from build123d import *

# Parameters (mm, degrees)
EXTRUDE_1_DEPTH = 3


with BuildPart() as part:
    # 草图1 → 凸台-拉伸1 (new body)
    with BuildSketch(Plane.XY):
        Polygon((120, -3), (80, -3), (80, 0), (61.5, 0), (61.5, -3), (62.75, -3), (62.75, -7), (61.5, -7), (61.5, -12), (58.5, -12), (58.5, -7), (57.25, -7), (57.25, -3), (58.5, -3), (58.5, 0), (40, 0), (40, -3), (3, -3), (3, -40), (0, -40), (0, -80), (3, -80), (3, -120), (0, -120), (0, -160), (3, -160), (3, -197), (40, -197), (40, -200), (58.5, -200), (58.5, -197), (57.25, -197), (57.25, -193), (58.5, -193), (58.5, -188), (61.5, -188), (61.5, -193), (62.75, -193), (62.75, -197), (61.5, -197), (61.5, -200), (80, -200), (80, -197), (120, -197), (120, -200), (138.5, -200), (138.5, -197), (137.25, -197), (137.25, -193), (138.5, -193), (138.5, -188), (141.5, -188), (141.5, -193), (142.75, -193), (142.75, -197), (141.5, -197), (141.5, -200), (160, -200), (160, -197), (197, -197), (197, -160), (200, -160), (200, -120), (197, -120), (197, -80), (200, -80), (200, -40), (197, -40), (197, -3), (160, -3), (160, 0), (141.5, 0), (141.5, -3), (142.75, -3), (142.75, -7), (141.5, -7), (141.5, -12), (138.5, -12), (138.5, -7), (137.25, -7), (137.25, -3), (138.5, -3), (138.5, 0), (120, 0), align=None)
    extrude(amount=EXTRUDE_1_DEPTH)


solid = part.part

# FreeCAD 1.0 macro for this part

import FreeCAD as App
import Part
import Sketcher
Q = App.Units.Quantity

doc = App.newDocument("Part")
body = doc.addObject("PartDesign::Body", "Body")

# Sketch on XY plane
sketch1 = doc.addObject("Sketcher::SketchObject", "Sketch")
body.addObject(sketch1)
sketch1.AttachmentSupport = (doc.XY_Plane, [""])
sketch1.MapMode = "FlatFace"
sketch1.addGeometry([
    Part.LineSegment(App.Vector(120, -3, 0), App.Vector(80, -3, 0)),  # 0
    Part.LineSegment(App.Vector(80, -3, 0), App.Vector(80, 0, 0)),  # 1
    Part.LineSegment(App.Vector(80, 0, 0), App.Vector(61.5, 0, 0)),  # 2
    Part.LineSegment(App.Vector(61.5, 0, 0), App.Vector(61.5, -3, 0)),  # 3
    Part.LineSegment(App.Vector(61.5, -3, 0), App.Vector(62.8, -3, 0)),  # 4
    Part.LineSegment(App.Vector(62.8, -3, 0), App.Vector(62.8, -7, 0)),  # 5
    Part.LineSegment(App.Vector(62.8, -7, 0), App.Vector(61.5, -7, 0)),  # 6
    Part.LineSegment(App.Vector(61.5, -7, 0), App.Vector(61.5, -12, 0)),  # 7
    Part.LineSegment(App.Vector(61.5, -12, 0), App.Vector(58.5, -12, 0)),  # 8
    Part.LineSegment(App.Vector(58.5, -12, 0), App.Vector(58.5, -7, 0)),  # 9
    Part.LineSegment(App.Vector(58.5, -7, 0), App.Vector(57.2, -7, 0)),  # 10
    Part.LineSegment(App.Vector(57.2, -7, 0), App.Vector(57.2, -3, 0)),  # 11
    Part.LineSegment(App.Vector(57.2, -3, 0), App.Vector(58.5, -3, 0)),  # 12
    Part.LineSegment(App.Vector(58.5, -3, 0), App.Vector(58.5, 0, 0)),  # 13
    Part.LineSegment(App.Vector(58.5, 0, 0), App.Vector(40, 0, 0)),  # 14
    Part.LineSegment(App.Vector(40, 0, 0), App.Vector(40, -3, 0)),  # 15
    Part.LineSegment(App.Vector(40, -3, 0), App.Vector(3, -3, 0)),  # 16
    Part.LineSegment(App.Vector(3, -3, 0), App.Vector(3, -40, 0)),  # 17
    Part.LineSegment(App.Vector(3, -40, 0), App.Vector(0, -40, 0)),  # 18
    Part.LineSegment(App.Vector(0, -40, 0), App.Vector(0, -80, 0)),  # 19
    Part.LineSegment(App.Vector(0, -80, 0), App.Vector(3, -80, 0)),  # 20
    Part.LineSegment(App.Vector(3, -80, 0), App.Vector(3, -120, 0)),  # 21
    Part.LineSegment(App.Vector(3, -120, 0), App.Vector(0, -120, 0)),  # 22
    Part.LineSegment(App.Vector(0, -120, 0), App.Vector(0, -160, 0)),  # 23
    Part.LineSegment(App.Vector(0, -160, 0), App.Vector(3, -160, 0)),  # 24
    Part.LineSegment(App.Vector(3, -160, 0), App.Vector(3, -197, 0)),  # 25
    Part.LineSegment(App.Vector(3, -197, 0), App.Vector(40, -197, 0)),  # 26
    Part.LineSegment(App.Vector(40, -197, 0), App.Vector(40, -200, 0)),  # 27
    Part.LineSegment(App.Vector(40, -200, 0), App.Vector(58.5, -200, 0)),  # 28
    Part.LineSegment(App.Vector(58.5, -200, 0), App.Vector(58.5, -197, 0)),  # 29
    Part.LineSegment(App.Vector(58.5, -197, 0), App.Vector(57.2, -197, 0)),  # 30
    Part.LineSegment(App.Vector(57.2, -197, 0), App.Vector(57.2, -193, 0)),  # 31
    Part.LineSegment(App.Vector(57.2, -193, 0), App.Vector(58.5, -193, 0)),  # 32
    Part.LineSegment(App.Vector(58.5, -193, 0), App.Vector(58.5, -188, 0)),  # 33
    Part.LineSegment(App.Vector(58.5, -188, 0), App.Vector(61.5, -188, 0)),  # 34
    Part.LineSegment(App.Vector(61.5, -188, 0), App.Vector(61.5, -193, 0)),  # 35
    Part.LineSegment(App.Vector(61.5, -193, 0), App.Vector(62.8, -193, 0)),  # 36
    Part.LineSegment(App.Vector(62.8, -193, 0), App.Vector(62.8, -197, 0)),  # 37
    Part.LineSegment(App.Vector(62.8, -197, 0), App.Vector(61.5, -197, 0)),  # 38
    Part.LineSegment(App.Vector(61.5, -197, 0), App.Vector(61.5, -200, 0)),  # 39
    Part.LineSegment(App.Vector(61.5, -200, 0), App.Vector(80, -200, 0)),  # 40
    Part.LineSegment(App.Vector(80, -200, 0), App.Vector(80, -197, 0)),  # 41
    Part.LineSegment(App.Vector(80, -197, 0), App.Vector(120, -197, 0)),  # 42
    Part.LineSegment(App.Vector(120, -197, 0), App.Vector(120, -200, 0)),  # 43
    Part.LineSegment(App.Vector(120, -200, 0), App.Vector(138.5, -200, 0)),  # 44
    Part.LineSegment(App.Vector(138.5, -200, 0), App.Vector(138.5, -197, 0)),  # 45
    Part.LineSegment(App.Vector(138.5, -197, 0), App.Vector(137.2, -197, 0)),  # 46
    Part.LineSegment(App.Vector(137.2, -197, 0), App.Vector(137.2, -193, 0)),  # 47
    Part.LineSegment(App.Vector(137.2, -193, 0), App.Vector(138.5, -193, 0)),  # 48
    Part.LineSegment(App.Vector(138.5, -193, 0), App.Vector(138.5, -188, 0)),  # 49
    Part.LineSegment(App.Vector(138.5, -188, 0), App.Vector(141.5, -188, 0)),  # 50
    Part.LineSegment(App.Vector(141.5, -188, 0), App.Vector(141.5, -193, 0)),  # 51
    Part.LineSegment(App.Vector(141.5, -193, 0), App.Vector(142.8, -193, 0)),  # 52
    Part.LineSegment(App.Vector(142.8, -193, 0), App.Vector(142.8, -197, 0)),  # 53
    Part.LineSegment(App.Vector(142.8, -197, 0), App.Vector(141.5, -197, 0)),  # 54
    Part.LineSegment(App.Vector(141.5, -197, 0), App.Vector(141.5, -200, 0)),  # 55
    Part.LineSegment(App.Vector(141.5, -200, 0), App.Vector(160, -200, 0)),  # 56
    Part.LineSegment(App.Vector(160, -200, 0), App.Vector(160, -197, 0)),  # 57
    Part.LineSegment(App.Vector(160, -197, 0), App.Vector(197, -197, 0)),  # 58
    Part.LineSegment(App.Vector(197, -197, 0), App.Vector(197, -160, 0)),  # 59
    Part.LineSegment(App.Vector(197, -160, 0), App.Vector(200, -160, 0)),  # 60
    Part.LineSegment(App.Vector(200, -160, 0), App.Vector(200, -120, 0)),  # 61
    Part.LineSegment(App.Vector(200, -120, 0), App.Vector(197, -120, 0)),  # 62
    Part.LineSegment(App.Vector(197, -120, 0), App.Vector(197, -80, 0)),  # 63
    Part.LineSegment(App.Vector(197, -80, 0), App.Vector(200, -80, 0)),  # 64
    Part.LineSegment(App.Vector(200, -80, 0), App.Vector(200, -40, 0)),  # 65
    Part.LineSegment(App.Vector(200, -40, 0), App.Vector(197, -40, 0)),  # 66
    Part.LineSegment(App.Vector(197, -40, 0), App.Vector(197, -3, 0)),  # 67
    Part.LineSegment(App.Vector(197, -3, 0), App.Vector(160, -3, 0)),  # 68
    Part.LineSegment(App.Vector(160, -3, 0), App.Vector(160, 0, 0)),  # 69
    Part.LineSegment(App.Vector(160, 0, 0), App.Vector(141.5, 0, 0)),  # 70
    Part.LineSegment(App.Vector(141.5, 0, 0), App.Vector(141.5, -3, 0)),  # 71
    Part.LineSegment(App.Vector(141.5, -3, 0), App.Vector(142.8, -3, 0)),  # 72
    Part.LineSegment(App.Vector(142.8, -3, 0), App.Vector(142.8, -7, 0)),  # 73
    Part.LineSegment(App.Vector(142.8, -7, 0), App.Vector(141.5, -7, 0)),  # 74
    Part.LineSegment(App.Vector(141.5, -7, 0), App.Vector(141.5, -12, 0)),  # 75
    Part.LineSegment(App.Vector(141.5, -12, 0), App.Vector(138.5, -12, 0)),  # 76
    Part.LineSegment(App.Vector(138.5, -12, 0), App.Vector(138.5, -7, 0)),  # 77
    Part.LineSegment(App.Vector(138.5, -7, 0), App.Vector(137.2, -7, 0)),  # 78
    Part.LineSegment(App.Vector(137.2, -7, 0), App.Vector(137.2, -3, 0)),  # 79
    Part.LineSegment(App.Vector(137.2, -3, 0), App.Vector(138.5, -3, 0)),  # 80
    Part.LineSegment(App.Vector(138.5, -3, 0), App.Vector(138.5, 0, 0)),  # 81
    Part.LineSegment(App.Vector(138.5, 0, 0), App.Vector(120, 0, 0)),  # 82
    Part.LineSegment(App.Vector(120, 0, 0), App.Vector(120, -3, 0)),  # 83
], False)
sketch1.addConstraint([
    Sketcher.Constraint("Coincident", 0, 2, 1, 1),
    Sketcher.Constraint("Coincident", 1, 2, 2, 1),
    Sketcher.Constraint("Coincident", 2, 2, 3, 1),
    Sketcher.Constraint("Coincident", 3, 2, 4, 1),
    Sketcher.Constraint("Coincident", 4, 2, 5, 1),
    Sketcher.Constraint("Coincident", 5, 2, 6, 1),
    Sketcher.Constraint("Coincident", 6, 2, 7, 1),
    Sketcher.Constraint("Coincident", 7, 2, 8, 1),
    Sketcher.Constraint("Coincident", 8, 2, 9, 1),
    Sketcher.Constraint("Coincident", 9, 2, 10, 1),
    Sketcher.Constraint("Coincident", 10, 2, 11, 1),
    Sketcher.Constraint("Coincident", 11, 2, 12, 1),
    Sketcher.Constraint("Coincident", 12, 2, 13, 1),
    Sketcher.Constraint("Coincident", 13, 2, 14, 1),
    Sketcher.Constraint("Coincident", 14, 2, 15, 1),
    Sketcher.Constraint("Coincident", 15, 2, 16, 1),
    Sketcher.Constraint("Coincident", 16, 2, 17, 1),
    Sketcher.Constraint("Coincident", 17, 2, 18, 1),
    Sketcher.Constraint("Coincident", 18, 2, 19, 1),
    Sketcher.Constraint("Coincident", 19, 2, 20, 1),
    Sketcher.Constraint("Coincident", 20, 2, 21, 1),
    Sketcher.Constraint("Coincident", 21, 2, 22, 1),
    Sketcher.Constraint("Coincident", 22, 2, 23, 1),
    Sketcher.Constraint("Coincident", 23, 2, 24, 1),
    Sketcher.Constraint("Coincident", 24, 2, 25, 1),
    Sketcher.Constraint("Coincident", 25, 2, 26, 1),
    Sketcher.Constraint("Coincident", 26, 2, 27, 1),
    Sketcher.Constraint("Coincident", 27, 2, 28, 1),
    Sketcher.Constraint("Coincident", 28, 2, 29, 1),
    Sketcher.Constraint("Coincident", 29, 2, 30, 1),
    Sketcher.Constraint("Coincident", 30, 2, 31, 1),
    Sketcher.Constraint("Coincident", 31, 2, 32, 1),
    Sketcher.Constraint("Coincident", 32, 2, 33, 1),
    Sketcher.Constraint("Coincident", 33, 2, 34, 1),
    Sketcher.Constraint("Coincident", 34, 2, 35, 1),
    Sketcher.Constraint("Coincident", 35, 2, 36, 1),
    Sketcher.Constraint("Coincident", 36, 2, 37, 1),
    Sketcher.Constraint("Coincident", 37, 2, 38, 1),
    Sketcher.Constraint("Coincident", 38, 2, 39, 1),
    Sketcher.Constraint("Coincident", 39, 2, 40, 1),
    Sketcher.Constraint("Coincident", 40, 2, 41, 1),
    Sketcher.Constraint("Coincident", 41, 2, 42, 1),
    Sketcher.Constraint("Coincident", 42, 2, 43, 1),
    Sketcher.Constraint("Coincident", 43, 2, 44, 1),
    Sketcher.Constraint("Coincident", 44, 2, 45, 1),
    Sketcher.Constraint("Coincident", 45, 2, 46, 1),
    Sketcher.Constraint("Coincident", 46, 2, 47, 1),
    Sketcher.Constraint("Coincident", 47, 2, 48, 1),
    Sketcher.Constraint("Coincident", 48, 2, 49, 1),
    Sketcher.Constraint("Coincident", 49, 2, 50, 1),
    Sketcher.Constraint("Coincident", 50, 2, 51, 1),
    Sketcher.Constraint("Coincident", 51, 2, 52, 1),
    Sketcher.Constraint("Coincident", 52, 2, 53, 1),
    Sketcher.Constraint("Coincident", 53, 2, 54, 1),
    Sketcher.Constraint("Coincident", 54, 2, 55, 1),
    Sketcher.Constraint("Coincident", 55, 2, 56, 1),
    Sketcher.Constraint("Coincident", 56, 2, 57, 1),
    Sketcher.Constraint("Coincident", 57, 2, 58, 1),
    Sketcher.Constraint("Coincident", 58, 2, 59, 1),
    Sketcher.Constraint("Coincident", 59, 2, 60, 1),
    Sketcher.Constraint("Coincident", 60, 2, 61, 1),
    Sketcher.Constraint("Coincident", 61, 2, 62, 1),
    Sketcher.Constraint("Coincident", 62, 2, 63, 1),
    Sketcher.Constraint("Coincident", 63, 2, 64, 1),
    Sketcher.Constraint("Coincident", 64, 2, 65, 1),
    Sketcher.Constraint("Coincident", 65, 2, 66, 1),
    Sketcher.Constraint("Coincident", 66, 2, 67, 1),
    Sketcher.Constraint("Coincident", 67, 2, 68, 1),
    Sketcher.Constraint("Coincident", 68, 2, 69, 1),
    Sketcher.Constraint("Coincident", 69, 2, 70, 1),
    Sketcher.Constraint("Coincident", 70, 2, 71, 1),
    Sketcher.Constraint("Coincident", 71, 2, 72, 1),
    Sketcher.Constraint("Coincident", 72, 2, 73, 1),
    Sketcher.Constraint("Coincident", 73, 2, 74, 1),
    Sketcher.Constraint("Coincident", 74, 2, 75, 1),
    Sketcher.Constraint("Coincident", 75, 2, 76, 1),
    Sketcher.Constraint("Coincident", 76, 2, 77, 1),
    Sketcher.Constraint("Coincident", 77, 2, 78, 1),
    Sketcher.Constraint("Coincident", 78, 2, 79, 1),
    Sketcher.Constraint("Coincident", 79, 2, 80, 1),
    Sketcher.Constraint("Coincident", 80, 2, 81, 1),
    Sketcher.Constraint("Coincident", 81, 2, 82, 1),
    Sketcher.Constraint("Coincident", 82, 2, 83, 1),
    Sketcher.Constraint("Coincident", 83, 2, 0, 1),
    Sketcher.Constraint("Horizontal", 0),
    Sketcher.Constraint("Vertical", 1),
    Sketcher.Constraint("Horizontal", 2),
    Sketcher.Constraint("Vertical", 3),
    Sketcher.Constraint("Horizontal", 4),
    Sketcher.Constraint("Vertical", 5),
    Sketcher.Constraint("Horizontal", 6),
    Sketcher.Constraint("Vertical", 7),
    Sketcher.Constraint("Horizontal", 8),
    Sketcher.Constraint("Vertical", 9),
    Sketcher.Constraint("Horizontal", 10),
    Sketcher.Constraint("Vertical", 11),
    Sketcher.Constraint("Horizontal", 12),
    Sketcher.Constraint("Vertical", 13),
    Sketcher.Constraint("Horizontal", 14),
    Sketcher.Constraint("Vertical", 15),
    Sketcher.Constraint("Horizontal", 16),
    Sketcher.Constraint("Vertical", 17),
    Sketcher.Constraint("Horizontal", 18),
    Sketcher.Constraint("Vertical", 19),
    Sketcher.Constraint("Horizontal", 20),
    Sketcher.Constraint("Vertical", 21),
    Sketcher.Constraint("Horizontal", 22),
    Sketcher.Constraint("Vertical", 23),
    Sketcher.Constraint("Horizontal", 24),
    Sketcher.Constraint("Vertical", 25),
    Sketcher.Constraint("Horizontal", 26),
    Sketcher.Constraint("Vertical", 27),
    Sketcher.Constraint("Horizontal", 28),
    Sketcher.Constraint("Vertical", 29),
    Sketcher.Constraint("Horizontal", 30),
    Sketcher.Constraint("Vertical", 31),
    Sketcher.Constraint("Horizontal", 32),
    Sketcher.Constraint("Vertical", 33),
    Sketcher.Constraint("Horizontal", 34),
    Sketcher.Constraint("Vertical", 35),
    Sketcher.Constraint("Horizontal", 36),
    Sketcher.Constraint("Vertical", 37),
    Sketcher.Constraint("Horizontal", 38),
    Sketcher.Constraint("Vertical", 39),
    Sketcher.Constraint("Horizontal", 40),
    Sketcher.Constraint("Vertical", 41),
    Sketcher.Constraint("Horizontal", 42),
    Sketcher.Constraint("Vertical", 43),
    Sketcher.Constraint("Horizontal", 44),
    Sketcher.Constraint("Vertical", 45),
    Sketcher.Constraint("Horizontal", 46),
    Sketcher.Constraint("Vertical", 47),
    Sketcher.Constraint("Horizontal", 48),
    Sketcher.Constraint("Vertical", 49),
    Sketcher.Constraint("Horizontal", 50),
    Sketcher.Constraint("Vertical", 51),
    Sketcher.Constraint("Horizontal", 52),
    Sketcher.Constraint("Vertical", 53),
    Sketcher.Constraint("Horizontal", 54),
    Sketcher.Constraint("Vertical", 55),
    Sketcher.Constraint("Horizontal", 56),
    Sketcher.Constraint("Vertical", 57),
    Sketcher.Constraint("Horizontal", 58),
    Sketcher.Constraint("Vertical", 59),
    Sketcher.Constraint("Horizontal", 60),
    Sketcher.Constraint("Vertical", 61),
    Sketcher.Constraint("Horizontal", 62),
    Sketcher.Constraint("Vertical", 63),
    Sketcher.Constraint("Horizontal", 64),
    Sketcher.Constraint("Vertical", 65),
    Sketcher.Constraint("Horizontal", 66),
    Sketcher.Constraint("Vertical", 67),
    Sketcher.Constraint("Horizontal", 68),
    Sketcher.Constraint("Vertical", 69),
    Sketcher.Constraint("Horizontal", 70),
    Sketcher.Constraint("Vertical", 71),
    Sketcher.Constraint("Horizontal", 72),
    Sketcher.Constraint("Vertical", 73),
    Sketcher.Constraint("Horizontal", 74),
    Sketcher.Constraint("Vertical", 75),
    Sketcher.Constraint("Horizontal", 76),
    Sketcher.Constraint("Vertical", 77),
    Sketcher.Constraint("Horizontal", 78),
    Sketcher.Constraint("Vertical", 79),
    Sketcher.Constraint("Horizontal", 80),
    Sketcher.Constraint("Vertical", 81),
    Sketcher.Constraint("Horizontal", 82),
    Sketcher.Constraint("Vertical", 83),
    Sketcher.Constraint("PointOnObject", 1, 2, -1),
    Sketcher.Constraint("PointOnObject", 13, 2, -1),
    Sketcher.Constraint("PointOnObject", 18, 2, -2),
    Sketcher.Constraint("PointOnObject", 22, 2, -2),
    Sketcher.Constraint("PointOnObject", 69, 2, -1),
    Sketcher.Constraint("PointOnObject", 81, 2, -1),
    Sketcher.Constraint("Horizontal", 0, 2, 3, 2),
    Sketcher.Constraint("Horizontal", 6, 2, 9, 2),
    Sketcher.Constraint("Horizontal", 4, 2, 11, 2),
    Sketcher.Constraint("Horizontal", 12, 2, 15, 2),
    Sketcher.Constraint("Horizontal", 26, 2, 29, 2),
    Sketcher.Constraint("Horizontal", 32, 2, 35, 2),
    Sketcher.Constraint("Horizontal", 30, 2, 37, 2),
    Sketcher.Constraint("Horizontal", 28, 2, 39, 2),
    Sketcher.Constraint("Horizontal", 38, 2, 41, 2),
    Sketcher.Constraint("Horizontal", 40, 2, 43, 2),
    Sketcher.Constraint("Horizontal", 42, 2, 45, 2),
    Sketcher.Constraint("Horizontal", 36, 2, 47, 2),
    Sketcher.Constraint("Horizontal", 34, 2, 49, 2),
    Sketcher.Constraint("Horizontal", 48, 2, 51, 2),
    Sketcher.Constraint("Horizontal", 46, 2, 53, 2),
    Sketcher.Constraint("Horizontal", 44, 2, 55, 2),
    Sketcher.Constraint("Horizontal", 54, 2, 57, 2),
    Sketcher.Constraint("Horizontal", 24, 2, 59, 2),
    Sketcher.Constraint("Horizontal", 22, 2, 61, 2),
    Sketcher.Constraint("Horizontal", 20, 2, 63, 2),
    Sketcher.Constraint("Horizontal", 18, 2, 65, 2),
    Sketcher.Constraint("Horizontal", 16, 2, 67, 2),
    Sketcher.Constraint("Horizontal", 68, 2, 71, 2),
    Sketcher.Constraint("Horizontal", 10, 2, 73, 2),
    Sketcher.Constraint("Horizontal", 8, 2, 75, 2),
    Sketcher.Constraint("Horizontal", 74, 2, 77, 2),
    Sketcher.Constraint("Horizontal", 72, 2, 79, 2),
    Sketcher.Constraint("Vertical", 3, 2, 6, 2),
    Sketcher.Constraint("Vertical", 9, 2, 12, 2),
    Sketcher.Constraint("Vertical", 17, 2, 20, 2),
    Sketcher.Constraint("Vertical", 21, 2, 24, 2),
    Sketcher.Constraint("Vertical", 15, 2, 26, 2),
    Sketcher.Constraint("Vertical", 13, 2, 28, 2),
    Sketcher.Constraint("Vertical", 11, 2, 30, 2),
    Sketcher.Constraint("Vertical", 29, 2, 32, 2),
    Sketcher.Constraint("Vertical", 7, 2, 34, 2),
    Sketcher.Constraint("Vertical", 5, 2, 36, 2),
    Sketcher.Constraint("Vertical", 35, 2, 38, 2),
    Sketcher.Constraint("Vertical", 1, 2, 40, 2),
    Sketcher.Constraint("Vertical", 45, 2, 48, 2),
    Sketcher.Constraint("Vertical", 51, 2, 54, 2),
    Sketcher.Constraint("Vertical", 59, 2, 62, 2),
    Sketcher.Constraint("Vertical", 61, 2, 64, 2),
    Sketcher.Constraint("Vertical", 63, 2, 66, 2),
    Sketcher.Constraint("Vertical", 57, 2, 68, 2),
    Sketcher.Constraint("Vertical", 55, 2, 70, 2),
    Sketcher.Constraint("Vertical", 53, 2, 72, 2),
    Sketcher.Constraint("Vertical", 71, 2, 74, 2),
    Sketcher.Constraint("Vertical", 49, 2, 76, 2),
    Sketcher.Constraint("Vertical", 47, 2, 78, 2),
    Sketcher.Constraint("Vertical", 77, 2, 80, 2),
    Sketcher.Constraint("Vertical", 43, 2, 82, 2),
    Sketcher.Constraint("Equal", 6, 10),
    Sketcher.Constraint("Equal", 2, 14),
    Sketcher.Constraint("Equal", 8, 18),
    Sketcher.Constraint("Equal", 40, 44),
    Sketcher.Constraint("Equal", 38, 46),
    Sketcher.Constraint("Equal", 34, 50),
    Sketcher.Constraint("Equal", 48, 52),
    Sketcher.Constraint("Equal", 44, 56),
    Sketcher.Constraint("Equal", 26, 58),
    Sketcher.Constraint("Equal", 50, 60),
    Sketcher.Constraint("Equal", 76, 1),
    Sketcher.Constraint("Equal", 68, 17),
    Sketcher.Constraint("Equal", 42, 19),
    Sketcher.Constraint("Equal", 19, 21),
    Sketcher.Constraint("Equal", 21, 23),
    Sketcher.Constraint("Equal", 17, 25),
    Sketcher.Constraint("Equal", 15, 27),
    Sketcher.Constraint("Equal", 11, 31),
    Sketcher.Constraint("Equal", 9, 33),
    Sketcher.Constraint("DistanceX", 0, 2, 0, 1, Q("40 mm")),
    Sketcher.Constraint("DistanceX", 8, 2, 8, 1, Q("3 mm")),
    Sketcher.Constraint("DistanceX", 16, 2, 16, 1, Q("37 mm")),
    Sketcher.Constraint("DistanceY", 5, 2, 5, 1, Q("4 mm")),
    Sketcher.Constraint("DistanceY", 7, 2, 7, 1, Q("5 mm")),
    Sketcher.Constraint("DistanceX", 2, 2, 2, 1, Q("18.5 mm")),
    Sketcher.Constraint("DistanceX", 4, 1, 4, 2, Q("1.25 mm")),
])
pad1 = doc.addObject("PartDesign::Pad", "Pad")
body.addObject(pad1)
pad1.Profile = sketch1
pad1.Length = 3

doc.recompute()
